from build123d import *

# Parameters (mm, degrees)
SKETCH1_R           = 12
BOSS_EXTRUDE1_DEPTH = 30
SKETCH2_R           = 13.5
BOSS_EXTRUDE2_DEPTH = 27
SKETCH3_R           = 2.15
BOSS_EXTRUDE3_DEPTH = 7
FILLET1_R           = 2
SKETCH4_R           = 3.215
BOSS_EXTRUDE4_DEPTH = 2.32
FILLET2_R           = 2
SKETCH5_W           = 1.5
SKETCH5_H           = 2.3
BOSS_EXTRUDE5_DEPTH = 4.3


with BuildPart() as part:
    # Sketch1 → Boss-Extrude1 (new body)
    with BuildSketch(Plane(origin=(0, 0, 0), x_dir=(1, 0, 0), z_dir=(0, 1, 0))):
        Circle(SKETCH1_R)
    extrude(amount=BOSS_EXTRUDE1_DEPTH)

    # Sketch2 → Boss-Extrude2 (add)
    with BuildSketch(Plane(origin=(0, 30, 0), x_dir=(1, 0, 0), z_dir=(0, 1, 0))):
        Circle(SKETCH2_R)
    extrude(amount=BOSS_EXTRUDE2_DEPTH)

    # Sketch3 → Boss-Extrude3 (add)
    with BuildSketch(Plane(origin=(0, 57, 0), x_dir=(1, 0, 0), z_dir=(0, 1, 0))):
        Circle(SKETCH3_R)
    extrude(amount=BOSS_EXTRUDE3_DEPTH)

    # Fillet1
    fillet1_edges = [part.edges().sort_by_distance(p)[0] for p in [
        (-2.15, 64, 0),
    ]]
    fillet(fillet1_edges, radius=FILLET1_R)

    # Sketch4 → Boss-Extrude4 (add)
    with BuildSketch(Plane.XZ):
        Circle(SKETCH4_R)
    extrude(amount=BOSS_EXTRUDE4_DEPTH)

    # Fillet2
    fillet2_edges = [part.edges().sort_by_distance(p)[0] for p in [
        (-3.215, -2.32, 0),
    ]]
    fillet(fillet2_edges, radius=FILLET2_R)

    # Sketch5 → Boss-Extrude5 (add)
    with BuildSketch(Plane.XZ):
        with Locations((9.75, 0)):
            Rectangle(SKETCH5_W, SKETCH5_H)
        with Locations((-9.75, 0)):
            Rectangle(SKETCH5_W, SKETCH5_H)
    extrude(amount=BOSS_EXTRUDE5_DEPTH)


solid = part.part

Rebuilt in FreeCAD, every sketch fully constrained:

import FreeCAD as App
import Part
import Sketcher

V = App.Vector


def edges_at(feature, points):
    """Names of the edges that pass closest to the given points."""
    edges = feature.Shape.Edges
    near = lambda p: min(range(len(edges)), key=lambda i: edges[i].distToShape(Part.Vertex(*p))[0])
    return sorted({f"Edge{near(p) + 1}" for p in points})


def add_polygon(sketch, points):
    """Adds a closed chain of lines whose ends are joined by coincident constraints."""
    first, n = sketch.GeometryCount, len(points)
    for a, b in zip(points, points[1:] + points[:1]):
        sketch.addGeometry(Part.LineSegment(App.Vector(*a, 0), App.Vector(*b, 0)), False)
    for i in range(n):
        sketch.addConstraint(Sketcher.Constraint("Coincident", first + i, 2, first + (i + 1) % n, 1))

doc = App.newDocument("Part")
body = doc.addObject("PartDesign::Body", "Body")

sketch1 = body.newObject("Sketcher::SketchObject", "Sketch")
sketch1.AttachmentSupport = (doc.getObject("XZ_Plane"), [""])
sketch1.MapMode = "FlatFace"
sketch1.addGeometry(Part.Circle(V(0, 0, 0), V(0, 0, 1), 12), False)
sketch1.addConstraint([
    Sketcher.Constraint("Coincident", 0, 3, -1, 1),
    Sketcher.Constraint("Diameter", 0, 24.0),
])
pad1 = body.newObject("PartDesign::Pad", "Pad")
pad1.Profile = sketch1
pad1.Length = 30
pad1.Reversed = True

sketch2 = body.newObject("Sketcher::SketchObject", "Sketch001")
sketch2.AttachmentSupport = (doc.getObject("XZ_Plane"), [""])
sketch2.MapMode = "FlatFace"
sketch2.AttachmentOffset = App.Placement(V(0, 0, -30), App.Rotation())
sketch2.addGeometry(Part.Circle(V(0, 0, 0), V(0, 0, 1), 13.5), False)
sketch2.addConstraint([
    Sketcher.Constraint("Coincident", 0, 3, -1, 1),
    Sketcher.Constraint("Diameter", 0, 27.0),
])
pad2 = body.newObject("PartDesign::Pad", "Pad001")
pad2.Profile = sketch2
pad2.Length = 27
pad2.Reversed = True

sketch3 = body.newObject("Sketcher::SketchObject", "Sketch002")
sketch3.AttachmentSupport = (doc.getObject("XZ_Plane"), [""])
sketch3.MapMode = "FlatFace"
sketch3.AttachmentOffset = App.Placement(V(0, 0, -57), App.Rotation())
sketch3.addGeometry(Part.Circle(V(0, 0, 0), V(0, 0, 1), 2.15), False)
sketch3.addConstraint([
    Sketcher.Constraint("Coincident", 0, 3, -1, 1),
    Sketcher.Constraint("Diameter", 0, 4.3),
])
pad3 = body.newObject("PartDesign::Pad", "Pad002")
pad3.Profile = sketch3
pad3.Length = 7
pad3.Reversed = True
doc.recompute()

fillet = body.newObject("PartDesign::Fillet", "Fillet")
fillet.Base = (pad3, edges_at(pad3, [(-2.15, 64, 0)]))
fillet.Radius = 2

sketch4 = body.newObject("Sketcher::SketchObject", "Sketch003")
sketch4.AttachmentSupport = (doc.getObject("XZ_Plane"), [""])
sketch4.MapMode = "FlatFace"
sketch4.addGeometry(Part.Circle(V(0, 0, 0), V(0, 0, 1), 3.215), False)
sketch4.addConstraint([
    Sketcher.Constraint("Coincident", 0, 3, -1, 1),
    Sketcher.Constraint("Diameter", 0, 6.43),
])
pad4 = body.newObject("PartDesign::Pad", "Pad003")
pad4.Profile = sketch4
pad4.Length = 2.32
doc.recompute()

fillet2 = body.newObject("PartDesign::Fillet", "Fillet001")
fillet2.Base = (pad4, edges_at(pad4, [(-3.215, -2.32, 0)]))
fillet2.Radius = 2

sketch5 = body.newObject("Sketcher::SketchObject", "Sketch004")
sketch5.AttachmentSupport = (doc.getObject("XZ_Plane"), [""])
sketch5.MapMode = "FlatFace"
add_polygon(sketch5, [(9, 1.15), (9, -1.15), (10.5, -1.15), (10.5, 1.15)])
add_polygon(sketch5, [(-10.5, 1.15), (-10.5, -1.15), (-9, -1.15), (-9, 1.15)])
sketch5.addConstraint([
    Sketcher.Constraint("Vertical", 0),
    Sketcher.Constraint("Horizontal", 1),
    Sketcher.Constraint("Vertical", 2),
    Sketcher.Constraint("Horizontal", 3),
    Sketcher.Constraint("Vertical", 4),
    Sketcher.Constraint("Horizontal", 5),
    Sketcher.Constraint("Vertical", 6),
    Sketcher.Constraint("Horizontal", 7),
    Sketcher.Constraint("Symmetric", 2, 2, 4, 2, -1, 1),
    Sketcher.Constraint("Symmetric", 0, 2, 6, 2, -1, 1),
    Sketcher.Constraint("Horizontal", 1, 2, 4, 2),
    Sketcher.Constraint("DistanceX", 1, 1, 1, 2, 1.5),
    Sketcher.Constraint("DistanceY", 0, 2, 0, 1, 2.3),
    Sketcher.Constraint("DistanceX", -1, 1, 0, 2, 9.0),
])
pad5 = body.newObject("PartDesign::Pad", "Pad004")
pad5.Profile = sketch5
pad5.Length = 4.3

doc.recompute()
